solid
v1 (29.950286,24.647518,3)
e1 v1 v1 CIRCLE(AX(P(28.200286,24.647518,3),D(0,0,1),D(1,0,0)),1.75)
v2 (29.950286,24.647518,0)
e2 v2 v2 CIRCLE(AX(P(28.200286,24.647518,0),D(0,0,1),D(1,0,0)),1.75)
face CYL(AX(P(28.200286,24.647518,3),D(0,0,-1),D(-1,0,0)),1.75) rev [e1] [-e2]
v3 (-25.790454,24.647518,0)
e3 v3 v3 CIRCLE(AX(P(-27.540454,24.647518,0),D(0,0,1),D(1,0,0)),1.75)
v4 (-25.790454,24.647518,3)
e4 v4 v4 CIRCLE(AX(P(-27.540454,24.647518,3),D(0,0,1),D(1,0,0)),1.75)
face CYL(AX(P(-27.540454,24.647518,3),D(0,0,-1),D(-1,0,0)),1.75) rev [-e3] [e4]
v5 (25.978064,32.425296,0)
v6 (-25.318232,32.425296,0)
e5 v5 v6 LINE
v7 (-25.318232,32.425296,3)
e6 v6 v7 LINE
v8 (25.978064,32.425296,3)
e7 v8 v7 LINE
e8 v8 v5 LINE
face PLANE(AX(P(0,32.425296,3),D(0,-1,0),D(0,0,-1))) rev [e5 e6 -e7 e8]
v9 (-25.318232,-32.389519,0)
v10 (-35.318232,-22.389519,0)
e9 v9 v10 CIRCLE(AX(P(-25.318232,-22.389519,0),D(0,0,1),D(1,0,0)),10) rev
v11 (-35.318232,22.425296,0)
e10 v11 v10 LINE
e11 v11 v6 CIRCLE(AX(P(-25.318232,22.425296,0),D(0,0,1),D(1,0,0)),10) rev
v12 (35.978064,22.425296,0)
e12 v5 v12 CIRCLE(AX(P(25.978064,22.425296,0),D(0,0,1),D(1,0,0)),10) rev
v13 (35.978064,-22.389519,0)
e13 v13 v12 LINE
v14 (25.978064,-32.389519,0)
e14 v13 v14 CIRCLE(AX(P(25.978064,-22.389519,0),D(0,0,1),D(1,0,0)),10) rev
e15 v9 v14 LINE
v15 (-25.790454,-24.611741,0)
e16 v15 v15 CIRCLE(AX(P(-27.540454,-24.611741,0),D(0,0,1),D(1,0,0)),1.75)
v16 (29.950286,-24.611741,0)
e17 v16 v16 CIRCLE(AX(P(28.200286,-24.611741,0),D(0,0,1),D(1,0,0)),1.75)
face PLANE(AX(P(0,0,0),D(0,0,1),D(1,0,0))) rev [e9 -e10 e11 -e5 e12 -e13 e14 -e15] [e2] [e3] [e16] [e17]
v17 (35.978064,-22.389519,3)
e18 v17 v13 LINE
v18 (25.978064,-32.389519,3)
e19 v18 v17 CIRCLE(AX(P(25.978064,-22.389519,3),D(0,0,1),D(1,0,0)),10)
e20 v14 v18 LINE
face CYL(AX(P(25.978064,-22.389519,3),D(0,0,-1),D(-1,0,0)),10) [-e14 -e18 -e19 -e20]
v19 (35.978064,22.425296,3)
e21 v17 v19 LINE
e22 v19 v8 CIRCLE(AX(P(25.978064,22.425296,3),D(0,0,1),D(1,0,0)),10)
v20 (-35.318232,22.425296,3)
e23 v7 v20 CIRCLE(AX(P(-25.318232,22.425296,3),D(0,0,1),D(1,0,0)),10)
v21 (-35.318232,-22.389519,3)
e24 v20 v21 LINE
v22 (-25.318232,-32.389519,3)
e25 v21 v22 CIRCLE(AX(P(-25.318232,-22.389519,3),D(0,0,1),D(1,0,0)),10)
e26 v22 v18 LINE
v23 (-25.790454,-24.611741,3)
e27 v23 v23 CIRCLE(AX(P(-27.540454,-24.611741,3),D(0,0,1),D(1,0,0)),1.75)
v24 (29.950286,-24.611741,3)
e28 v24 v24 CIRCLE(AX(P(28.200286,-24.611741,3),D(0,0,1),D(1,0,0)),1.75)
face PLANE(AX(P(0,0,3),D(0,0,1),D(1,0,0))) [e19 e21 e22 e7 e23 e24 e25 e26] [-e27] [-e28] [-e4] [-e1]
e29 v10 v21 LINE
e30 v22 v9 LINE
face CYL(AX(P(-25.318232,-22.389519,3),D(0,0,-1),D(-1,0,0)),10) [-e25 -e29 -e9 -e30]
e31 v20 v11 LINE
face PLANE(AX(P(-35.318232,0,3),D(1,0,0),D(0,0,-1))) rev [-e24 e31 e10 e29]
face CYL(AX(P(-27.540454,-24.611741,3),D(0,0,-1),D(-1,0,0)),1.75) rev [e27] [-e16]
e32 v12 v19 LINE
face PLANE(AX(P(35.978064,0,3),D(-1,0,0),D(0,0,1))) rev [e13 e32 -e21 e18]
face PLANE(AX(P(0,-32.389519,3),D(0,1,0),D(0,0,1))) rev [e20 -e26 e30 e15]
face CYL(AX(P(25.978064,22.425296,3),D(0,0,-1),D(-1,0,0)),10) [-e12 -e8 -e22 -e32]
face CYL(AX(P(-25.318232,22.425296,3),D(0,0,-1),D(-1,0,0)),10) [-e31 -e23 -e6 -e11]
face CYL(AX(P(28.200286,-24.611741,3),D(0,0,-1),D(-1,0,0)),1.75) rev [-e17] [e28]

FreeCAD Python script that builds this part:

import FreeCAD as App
import Part
import Sketcher
from FreeCAD import Vector
Q = App.Units.Quantity


def edges_at(feature, points):
    """Names of the edges that pass closest to the given points."""
    edges = feature.Shape.Edges
    near = lambda p: min(range(len(edges)), key=lambda i: edges[i].distToShape(Part.Vertex(*p))[0])
    return sorted({f"Edge{near(p) + 1}" for p in points})


def add_polygon(sketch, points):
    """Adds a closed chain of lines whose ends are joined by coincident constraints."""
    first, n = sketch.GeometryCount, len(points)
    for a, b in zip(points, points[1:] + points[:1]):
        sketch.addGeometry(Part.LineSegment(App.Vector(*a, 0), App.Vector(*b, 0)), False)
    for i in range(n):
        sketch.addConstraint(Sketcher.Constraint("Coincident", first + i, 2, first + (i + 1) % n, 1))

doc = App.newDocument("Part")
body = doc.addObject("PartDesign::Body", "Body")

sketch1 = body.newObject("Sketcher::SketchObject", "Sketch")
sketch1.AttachmentSupport = (doc.getObject("XY_Plane"), [""])
sketch1.MapMode = "FlatFace"
add_polygon(sketch1, [(-35.3, 32.4), (-35.3, -32.4), (36, -32.4), (36, 32.4)])
sketch1.addGeometry(Part.Circle(Vector(-27.5, -24.6, 0), Vector(0, 0, 1), 1.8), False)
sketch1.addGeometry(Part.Circle(Vector(28.2, -24.6, 0), Vector(0, 0, 1), 1.8), False)
sketch1.addGeometry(Part.Circle(Vector(-27.5, 24.6, 0), Vector(0, 0, 1), 1.8), False)
sketch1.addGeometry(Part.Circle(Vector(28.2, 24.6, 0), Vector(0, 0, 1), 1.8), False)
sketch1.addConstraint([
    Sketcher.Constraint("Vertical", 0),
    Sketcher.Constraint("Horizontal", 1),
    Sketcher.Constraint("Vertical", 2),
    Sketcher.Constraint("Horizontal", 3),
    Sketcher.Constraint("Equal", 4, 5),
    Sketcher.Constraint("Equal", 5, 6),
    Sketcher.Constraint("Equal", 6, 7),
    Sketcher.Constraint("Horizontal", 4, 3, 5, 3),
    Sketcher.Constraint("Horizontal", 6, 3, 7, 3),
    Sketcher.Constraint("Vertical", 4, 3, 6, 3),
    Sketcher.Constraint("Vertical", 5, 3, 7, 3),
    Sketcher.Constraint("Diameter", 4, Q("3.5 mm")),
    Sketcher.Constraint("DistanceX", 1, 1, 1, 2, Q("71.296296 mm")),
    Sketcher.Constraint("DistanceY", 0, 2, 0, 1, Q("64.814815 mm")),
    Sketcher.Constraint("DistanceY", 4, 3, -1, 1, Q("24.611741 mm")),
    Sketcher.Constraint("DistanceY", -1, 1, 6, 3, Q("24.647518 mm")),
    Sketcher.Constraint("DistanceY", 0, 2, -1, 1, Q("32.389519 mm")),
    Sketcher.Constraint("DistanceX", 4, 3, 5, 3, Q("55.740741 mm")),
    Sketcher.Constraint("DistanceX", 0, 2, 5, 3, Q("63.518519 mm")),
    Sketcher.Constraint("DistanceX", 4, 3, -1, 1, Q("27.540454 mm")),
])
pad1 = body.newObject("PartDesign::Pad", "Pad")
pad1.Profile = sketch1
pad1.Length = 3
doc.recompute()

fillet = body.newObject("PartDesign::Fillet", "Fillet")
fillet.Base = (pad1, edges_at(pad1, [
    (35.978, 32.425, 1.5),
    (35.978, -32.39, 1.5),
    (-35.318, -32.39, 1.5),
    (-35.318, 32.425, 1.5),
]))
fillet.Radius = 10

doc.recompute()
